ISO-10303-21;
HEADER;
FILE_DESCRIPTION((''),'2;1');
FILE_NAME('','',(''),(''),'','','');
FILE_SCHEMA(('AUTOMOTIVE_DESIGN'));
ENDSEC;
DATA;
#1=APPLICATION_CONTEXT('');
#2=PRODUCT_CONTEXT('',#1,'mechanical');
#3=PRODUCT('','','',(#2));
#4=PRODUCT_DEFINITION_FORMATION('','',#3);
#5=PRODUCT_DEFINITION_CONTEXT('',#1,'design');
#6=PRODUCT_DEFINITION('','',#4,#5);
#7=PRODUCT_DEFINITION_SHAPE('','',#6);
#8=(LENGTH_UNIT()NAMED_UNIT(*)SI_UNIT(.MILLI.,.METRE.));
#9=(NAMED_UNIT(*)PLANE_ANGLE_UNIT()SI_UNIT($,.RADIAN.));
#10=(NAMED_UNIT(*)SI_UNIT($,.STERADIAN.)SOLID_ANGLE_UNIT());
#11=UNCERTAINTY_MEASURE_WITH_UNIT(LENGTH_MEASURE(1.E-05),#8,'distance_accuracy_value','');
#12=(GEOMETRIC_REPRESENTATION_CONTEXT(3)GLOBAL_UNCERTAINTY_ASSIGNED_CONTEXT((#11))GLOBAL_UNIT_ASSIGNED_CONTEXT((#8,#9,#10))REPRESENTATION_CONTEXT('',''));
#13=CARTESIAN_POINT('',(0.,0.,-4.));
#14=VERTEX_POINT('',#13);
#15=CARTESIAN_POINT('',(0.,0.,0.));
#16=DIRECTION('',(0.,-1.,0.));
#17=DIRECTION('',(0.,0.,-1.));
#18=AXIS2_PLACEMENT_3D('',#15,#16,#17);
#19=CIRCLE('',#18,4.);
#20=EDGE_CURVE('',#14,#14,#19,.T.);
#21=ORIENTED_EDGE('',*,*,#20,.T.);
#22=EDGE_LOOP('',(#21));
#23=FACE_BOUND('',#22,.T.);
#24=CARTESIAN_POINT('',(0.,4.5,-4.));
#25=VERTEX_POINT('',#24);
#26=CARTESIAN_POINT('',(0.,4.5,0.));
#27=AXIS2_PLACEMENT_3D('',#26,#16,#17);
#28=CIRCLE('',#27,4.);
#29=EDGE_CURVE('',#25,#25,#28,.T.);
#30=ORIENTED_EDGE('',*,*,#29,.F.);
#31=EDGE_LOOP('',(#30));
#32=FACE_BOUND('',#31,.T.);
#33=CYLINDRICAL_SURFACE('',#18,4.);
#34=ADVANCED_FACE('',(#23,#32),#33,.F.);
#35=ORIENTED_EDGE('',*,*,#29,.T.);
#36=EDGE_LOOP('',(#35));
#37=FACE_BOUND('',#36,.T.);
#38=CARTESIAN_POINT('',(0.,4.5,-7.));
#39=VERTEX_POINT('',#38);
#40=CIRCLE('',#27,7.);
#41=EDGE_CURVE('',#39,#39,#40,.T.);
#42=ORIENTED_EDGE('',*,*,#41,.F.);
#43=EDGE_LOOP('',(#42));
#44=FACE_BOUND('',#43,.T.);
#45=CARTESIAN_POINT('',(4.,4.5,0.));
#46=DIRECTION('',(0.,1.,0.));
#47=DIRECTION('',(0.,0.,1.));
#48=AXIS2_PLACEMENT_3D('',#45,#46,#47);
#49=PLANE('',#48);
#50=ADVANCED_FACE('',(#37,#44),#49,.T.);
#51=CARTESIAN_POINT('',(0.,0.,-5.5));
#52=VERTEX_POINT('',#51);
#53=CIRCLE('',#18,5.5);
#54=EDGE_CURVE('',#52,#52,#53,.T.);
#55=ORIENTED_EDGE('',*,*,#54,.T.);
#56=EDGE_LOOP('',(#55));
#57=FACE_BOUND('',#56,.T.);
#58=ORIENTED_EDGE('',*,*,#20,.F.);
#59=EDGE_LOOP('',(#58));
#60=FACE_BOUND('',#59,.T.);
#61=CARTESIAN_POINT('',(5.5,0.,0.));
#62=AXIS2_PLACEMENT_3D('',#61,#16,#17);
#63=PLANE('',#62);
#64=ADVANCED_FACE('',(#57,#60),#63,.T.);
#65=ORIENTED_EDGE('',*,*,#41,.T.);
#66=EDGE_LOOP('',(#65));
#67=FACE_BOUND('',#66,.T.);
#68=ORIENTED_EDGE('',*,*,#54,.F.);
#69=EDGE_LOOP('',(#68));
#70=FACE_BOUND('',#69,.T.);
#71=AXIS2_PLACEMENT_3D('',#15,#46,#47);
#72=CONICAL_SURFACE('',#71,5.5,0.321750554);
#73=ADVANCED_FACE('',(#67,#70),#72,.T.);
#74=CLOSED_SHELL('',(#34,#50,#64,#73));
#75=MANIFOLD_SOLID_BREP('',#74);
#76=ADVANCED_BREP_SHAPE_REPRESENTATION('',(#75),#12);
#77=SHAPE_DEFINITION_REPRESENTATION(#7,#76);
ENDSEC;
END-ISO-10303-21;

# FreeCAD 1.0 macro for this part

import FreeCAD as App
import Part
import Sketcher

V = App.Vector
Q = App.Units.Quantity

doc = App.newDocument("Part")
body = doc.addObject("PartDesign::Body", "Body")

# Sketch on XY plane
sketch1 = body.newObject("Sketcher::SketchObject", "Sketch")
sketch1.AttachmentSupport = (doc.getObject("XY_Plane"), [""])
sketch1.MapMode = "FlatFace"
sketch1.addGeometry([
    Part.LineSegment(V(7, 4.5, 0), V(4, 4.5, 0)),
    Part.LineSegment(V(4, 4.5, 0), V(4, 0, 0)),
    Part.LineSegment(V(4, 0, 0), V(5.5, 0, 0)),
    Part.LineSegment(V(5.5, 0, 0), V(7, 4.5, 0)),
], False)
sketch1.addConstraint([
    Sketcher.Constraint("Coincident", 0, 2, 1, 1),
    Sketcher.Constraint("Coincident", 1, 2, 2, 1),
    Sketcher.Constraint("Coincident", 2, 2, 3, 1),
    Sketcher.Constraint("Coincident", 3, 2, 0, 1),
    Sketcher.Constraint("Horizontal", 0),
    Sketcher.Constraint("Vertical", 1),
    Sketcher.Constraint("Horizontal", 2),
    Sketcher.Constraint("PointOnObject", 1, 2, -1),
    Sketcher.Constraint("DistanceX", 0, 2, 0, 1, Q("3 mm")),
    Sketcher.Constraint("DistanceX", 2, 1, 2, 2, Q("1.5 mm")),
    Sketcher.Constraint("DistanceY", 1, 2, 1, 1, Q("4.5 mm")),
    Sketcher.Constraint("DistanceX", -1, 1, 0, 2, Q("4 mm")),
])
revolution = body.newObject("PartDesign::Revolution", "Revolution")
revolution.Profile = sketch1
revolution.ReferenceAxis = (sketch1, ["V_Axis"])
revolution.Angle = 360

doc.recompute()
